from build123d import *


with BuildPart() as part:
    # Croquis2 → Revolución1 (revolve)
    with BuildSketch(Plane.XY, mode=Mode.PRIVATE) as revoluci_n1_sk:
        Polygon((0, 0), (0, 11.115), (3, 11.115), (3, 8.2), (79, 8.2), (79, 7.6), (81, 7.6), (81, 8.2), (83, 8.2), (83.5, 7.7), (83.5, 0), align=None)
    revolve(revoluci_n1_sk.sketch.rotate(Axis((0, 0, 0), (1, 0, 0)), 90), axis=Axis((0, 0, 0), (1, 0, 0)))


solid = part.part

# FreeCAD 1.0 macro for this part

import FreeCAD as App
import Part
import Sketcher
Q = App.Units.Quantity

doc = App.newDocument("Part")
body = doc.addObject("PartDesign::Body", "Body")

sketch1 = body.newObject("Sketcher::SketchObject", "Sketch")
sketch1.AttachmentSupport = (doc.getObject("XY_Plane"), [""])
sketch1.MapMode = "FlatFace"
sketch1.addGeometry([
    Part.LineSegment(App.Vector(0, 11.1, 0), App.Vector(0, 0, 0)),
    Part.LineSegment(App.Vector(0, 0, 0), App.Vector(83.5, 0, 0)),
    Part.LineSegment(App.Vector(83.5, 0, 0), App.Vector(83.5, 7.7, 0)),
    Part.LineSegment(App.Vector(83.5, 7.7, 0), App.Vector(83, 8.2, 0)),
    Part.LineSegment(App.Vector(83, 8.2, 0), App.Vector(81, 8.2, 0)),
    Part.LineSegment(App.Vector(81, 8.2, 0), App.Vector(81, 7.6, 0)),
    Part.LineSegment(App.Vector(81, 7.6, 0), App.Vector(79, 7.6, 0)),
    Part.LineSegment(App.Vector(79, 7.6, 0), App.Vector(79, 8.2, 0)),
    Part.LineSegment(App.Vector(79, 8.2, 0), App.Vector(3, 8.2, 0)),
    Part.LineSegment(App.Vector(3, 8.2, 0), App.Vector(3, 11.1, 0)),
    Part.LineSegment(App.Vector(3, 11.1, 0), App.Vector(0, 11.1, 0)),
], False)
sketch1.addConstraint([
    Sketcher.Constraint("Coincident", 0, 2, 1, 1),
    Sketcher.Constraint("Coincident", 1, 2, 2, 1),
    Sketcher.Constraint("Coincident", 2, 2, 3, 1),
    Sketcher.Constraint("Coincident", 3, 2, 4, 1),
    Sketcher.Constraint("Coincident", 4, 2, 5, 1),
    Sketcher.Constraint("Coincident", 5, 2, 6, 1),
    Sketcher.Constraint("Coincident", 6, 2, 7, 1),
    Sketcher.Constraint("Coincident", 7, 2, 8, 1),
    Sketcher.Constraint("Coincident", 8, 2, 9, 1),
    Sketcher.Constraint("Coincident", 9, 2, 10, 1),
    Sketcher.Constraint("Coincident", 10, 2, 0, 1),
    Sketcher.Constraint("Vertical", 0),
    Sketcher.Constraint("Horizontal", 1),
    Sketcher.Constraint("Vertical", 2),
    Sketcher.Constraint("Horizontal", 4),
    Sketcher.Constraint("Vertical", 5),
    Sketcher.Constraint("Horizontal", 6),
    Sketcher.Constraint("Vertical", 7),
    Sketcher.Constraint("Horizontal", 8),
    Sketcher.Constraint("Vertical", 9),
    Sketcher.Constraint("Horizontal", 10),
    Sketcher.Constraint("Coincident", 0, 2, -1, 1),
    Sketcher.Constraint("Horizontal", 4, 2, 7, 2),
    Sketcher.Constraint("Equal", 4, 6),
    Sketcher.Constraint("DistanceX", 4, 2, 4, 1, 2.0),
    Sketcher.Constraint("DistanceX", 8, 2, 8, 1, 76.0),
    Sketcher.Constraint("DistanceX", 10, 2, 10, 1, 3.0),
    Sketcher.Constraint("Angle", 3, Q("135 deg")),
    Sketcher.Constraint("DistanceX", 1, 1, 1, 2, 83.5),
    Sketcher.Constraint("DistanceY", 2, 1, 2, 2, 7.7),
    Sketcher.Constraint("DistanceY", 5, 2, 5, 1, 0.6),
    Sketcher.Constraint("DistanceY", 0, 2, 0, 1, 11.115),
])
revolution = body.newObject("PartDesign::Revolution", "Revolution")
revolution.Profile = sketch1
revolution.ReferenceAxis = (sketch1, ["H_Axis"])
revolution.Angle = 360

doc.recompute()
